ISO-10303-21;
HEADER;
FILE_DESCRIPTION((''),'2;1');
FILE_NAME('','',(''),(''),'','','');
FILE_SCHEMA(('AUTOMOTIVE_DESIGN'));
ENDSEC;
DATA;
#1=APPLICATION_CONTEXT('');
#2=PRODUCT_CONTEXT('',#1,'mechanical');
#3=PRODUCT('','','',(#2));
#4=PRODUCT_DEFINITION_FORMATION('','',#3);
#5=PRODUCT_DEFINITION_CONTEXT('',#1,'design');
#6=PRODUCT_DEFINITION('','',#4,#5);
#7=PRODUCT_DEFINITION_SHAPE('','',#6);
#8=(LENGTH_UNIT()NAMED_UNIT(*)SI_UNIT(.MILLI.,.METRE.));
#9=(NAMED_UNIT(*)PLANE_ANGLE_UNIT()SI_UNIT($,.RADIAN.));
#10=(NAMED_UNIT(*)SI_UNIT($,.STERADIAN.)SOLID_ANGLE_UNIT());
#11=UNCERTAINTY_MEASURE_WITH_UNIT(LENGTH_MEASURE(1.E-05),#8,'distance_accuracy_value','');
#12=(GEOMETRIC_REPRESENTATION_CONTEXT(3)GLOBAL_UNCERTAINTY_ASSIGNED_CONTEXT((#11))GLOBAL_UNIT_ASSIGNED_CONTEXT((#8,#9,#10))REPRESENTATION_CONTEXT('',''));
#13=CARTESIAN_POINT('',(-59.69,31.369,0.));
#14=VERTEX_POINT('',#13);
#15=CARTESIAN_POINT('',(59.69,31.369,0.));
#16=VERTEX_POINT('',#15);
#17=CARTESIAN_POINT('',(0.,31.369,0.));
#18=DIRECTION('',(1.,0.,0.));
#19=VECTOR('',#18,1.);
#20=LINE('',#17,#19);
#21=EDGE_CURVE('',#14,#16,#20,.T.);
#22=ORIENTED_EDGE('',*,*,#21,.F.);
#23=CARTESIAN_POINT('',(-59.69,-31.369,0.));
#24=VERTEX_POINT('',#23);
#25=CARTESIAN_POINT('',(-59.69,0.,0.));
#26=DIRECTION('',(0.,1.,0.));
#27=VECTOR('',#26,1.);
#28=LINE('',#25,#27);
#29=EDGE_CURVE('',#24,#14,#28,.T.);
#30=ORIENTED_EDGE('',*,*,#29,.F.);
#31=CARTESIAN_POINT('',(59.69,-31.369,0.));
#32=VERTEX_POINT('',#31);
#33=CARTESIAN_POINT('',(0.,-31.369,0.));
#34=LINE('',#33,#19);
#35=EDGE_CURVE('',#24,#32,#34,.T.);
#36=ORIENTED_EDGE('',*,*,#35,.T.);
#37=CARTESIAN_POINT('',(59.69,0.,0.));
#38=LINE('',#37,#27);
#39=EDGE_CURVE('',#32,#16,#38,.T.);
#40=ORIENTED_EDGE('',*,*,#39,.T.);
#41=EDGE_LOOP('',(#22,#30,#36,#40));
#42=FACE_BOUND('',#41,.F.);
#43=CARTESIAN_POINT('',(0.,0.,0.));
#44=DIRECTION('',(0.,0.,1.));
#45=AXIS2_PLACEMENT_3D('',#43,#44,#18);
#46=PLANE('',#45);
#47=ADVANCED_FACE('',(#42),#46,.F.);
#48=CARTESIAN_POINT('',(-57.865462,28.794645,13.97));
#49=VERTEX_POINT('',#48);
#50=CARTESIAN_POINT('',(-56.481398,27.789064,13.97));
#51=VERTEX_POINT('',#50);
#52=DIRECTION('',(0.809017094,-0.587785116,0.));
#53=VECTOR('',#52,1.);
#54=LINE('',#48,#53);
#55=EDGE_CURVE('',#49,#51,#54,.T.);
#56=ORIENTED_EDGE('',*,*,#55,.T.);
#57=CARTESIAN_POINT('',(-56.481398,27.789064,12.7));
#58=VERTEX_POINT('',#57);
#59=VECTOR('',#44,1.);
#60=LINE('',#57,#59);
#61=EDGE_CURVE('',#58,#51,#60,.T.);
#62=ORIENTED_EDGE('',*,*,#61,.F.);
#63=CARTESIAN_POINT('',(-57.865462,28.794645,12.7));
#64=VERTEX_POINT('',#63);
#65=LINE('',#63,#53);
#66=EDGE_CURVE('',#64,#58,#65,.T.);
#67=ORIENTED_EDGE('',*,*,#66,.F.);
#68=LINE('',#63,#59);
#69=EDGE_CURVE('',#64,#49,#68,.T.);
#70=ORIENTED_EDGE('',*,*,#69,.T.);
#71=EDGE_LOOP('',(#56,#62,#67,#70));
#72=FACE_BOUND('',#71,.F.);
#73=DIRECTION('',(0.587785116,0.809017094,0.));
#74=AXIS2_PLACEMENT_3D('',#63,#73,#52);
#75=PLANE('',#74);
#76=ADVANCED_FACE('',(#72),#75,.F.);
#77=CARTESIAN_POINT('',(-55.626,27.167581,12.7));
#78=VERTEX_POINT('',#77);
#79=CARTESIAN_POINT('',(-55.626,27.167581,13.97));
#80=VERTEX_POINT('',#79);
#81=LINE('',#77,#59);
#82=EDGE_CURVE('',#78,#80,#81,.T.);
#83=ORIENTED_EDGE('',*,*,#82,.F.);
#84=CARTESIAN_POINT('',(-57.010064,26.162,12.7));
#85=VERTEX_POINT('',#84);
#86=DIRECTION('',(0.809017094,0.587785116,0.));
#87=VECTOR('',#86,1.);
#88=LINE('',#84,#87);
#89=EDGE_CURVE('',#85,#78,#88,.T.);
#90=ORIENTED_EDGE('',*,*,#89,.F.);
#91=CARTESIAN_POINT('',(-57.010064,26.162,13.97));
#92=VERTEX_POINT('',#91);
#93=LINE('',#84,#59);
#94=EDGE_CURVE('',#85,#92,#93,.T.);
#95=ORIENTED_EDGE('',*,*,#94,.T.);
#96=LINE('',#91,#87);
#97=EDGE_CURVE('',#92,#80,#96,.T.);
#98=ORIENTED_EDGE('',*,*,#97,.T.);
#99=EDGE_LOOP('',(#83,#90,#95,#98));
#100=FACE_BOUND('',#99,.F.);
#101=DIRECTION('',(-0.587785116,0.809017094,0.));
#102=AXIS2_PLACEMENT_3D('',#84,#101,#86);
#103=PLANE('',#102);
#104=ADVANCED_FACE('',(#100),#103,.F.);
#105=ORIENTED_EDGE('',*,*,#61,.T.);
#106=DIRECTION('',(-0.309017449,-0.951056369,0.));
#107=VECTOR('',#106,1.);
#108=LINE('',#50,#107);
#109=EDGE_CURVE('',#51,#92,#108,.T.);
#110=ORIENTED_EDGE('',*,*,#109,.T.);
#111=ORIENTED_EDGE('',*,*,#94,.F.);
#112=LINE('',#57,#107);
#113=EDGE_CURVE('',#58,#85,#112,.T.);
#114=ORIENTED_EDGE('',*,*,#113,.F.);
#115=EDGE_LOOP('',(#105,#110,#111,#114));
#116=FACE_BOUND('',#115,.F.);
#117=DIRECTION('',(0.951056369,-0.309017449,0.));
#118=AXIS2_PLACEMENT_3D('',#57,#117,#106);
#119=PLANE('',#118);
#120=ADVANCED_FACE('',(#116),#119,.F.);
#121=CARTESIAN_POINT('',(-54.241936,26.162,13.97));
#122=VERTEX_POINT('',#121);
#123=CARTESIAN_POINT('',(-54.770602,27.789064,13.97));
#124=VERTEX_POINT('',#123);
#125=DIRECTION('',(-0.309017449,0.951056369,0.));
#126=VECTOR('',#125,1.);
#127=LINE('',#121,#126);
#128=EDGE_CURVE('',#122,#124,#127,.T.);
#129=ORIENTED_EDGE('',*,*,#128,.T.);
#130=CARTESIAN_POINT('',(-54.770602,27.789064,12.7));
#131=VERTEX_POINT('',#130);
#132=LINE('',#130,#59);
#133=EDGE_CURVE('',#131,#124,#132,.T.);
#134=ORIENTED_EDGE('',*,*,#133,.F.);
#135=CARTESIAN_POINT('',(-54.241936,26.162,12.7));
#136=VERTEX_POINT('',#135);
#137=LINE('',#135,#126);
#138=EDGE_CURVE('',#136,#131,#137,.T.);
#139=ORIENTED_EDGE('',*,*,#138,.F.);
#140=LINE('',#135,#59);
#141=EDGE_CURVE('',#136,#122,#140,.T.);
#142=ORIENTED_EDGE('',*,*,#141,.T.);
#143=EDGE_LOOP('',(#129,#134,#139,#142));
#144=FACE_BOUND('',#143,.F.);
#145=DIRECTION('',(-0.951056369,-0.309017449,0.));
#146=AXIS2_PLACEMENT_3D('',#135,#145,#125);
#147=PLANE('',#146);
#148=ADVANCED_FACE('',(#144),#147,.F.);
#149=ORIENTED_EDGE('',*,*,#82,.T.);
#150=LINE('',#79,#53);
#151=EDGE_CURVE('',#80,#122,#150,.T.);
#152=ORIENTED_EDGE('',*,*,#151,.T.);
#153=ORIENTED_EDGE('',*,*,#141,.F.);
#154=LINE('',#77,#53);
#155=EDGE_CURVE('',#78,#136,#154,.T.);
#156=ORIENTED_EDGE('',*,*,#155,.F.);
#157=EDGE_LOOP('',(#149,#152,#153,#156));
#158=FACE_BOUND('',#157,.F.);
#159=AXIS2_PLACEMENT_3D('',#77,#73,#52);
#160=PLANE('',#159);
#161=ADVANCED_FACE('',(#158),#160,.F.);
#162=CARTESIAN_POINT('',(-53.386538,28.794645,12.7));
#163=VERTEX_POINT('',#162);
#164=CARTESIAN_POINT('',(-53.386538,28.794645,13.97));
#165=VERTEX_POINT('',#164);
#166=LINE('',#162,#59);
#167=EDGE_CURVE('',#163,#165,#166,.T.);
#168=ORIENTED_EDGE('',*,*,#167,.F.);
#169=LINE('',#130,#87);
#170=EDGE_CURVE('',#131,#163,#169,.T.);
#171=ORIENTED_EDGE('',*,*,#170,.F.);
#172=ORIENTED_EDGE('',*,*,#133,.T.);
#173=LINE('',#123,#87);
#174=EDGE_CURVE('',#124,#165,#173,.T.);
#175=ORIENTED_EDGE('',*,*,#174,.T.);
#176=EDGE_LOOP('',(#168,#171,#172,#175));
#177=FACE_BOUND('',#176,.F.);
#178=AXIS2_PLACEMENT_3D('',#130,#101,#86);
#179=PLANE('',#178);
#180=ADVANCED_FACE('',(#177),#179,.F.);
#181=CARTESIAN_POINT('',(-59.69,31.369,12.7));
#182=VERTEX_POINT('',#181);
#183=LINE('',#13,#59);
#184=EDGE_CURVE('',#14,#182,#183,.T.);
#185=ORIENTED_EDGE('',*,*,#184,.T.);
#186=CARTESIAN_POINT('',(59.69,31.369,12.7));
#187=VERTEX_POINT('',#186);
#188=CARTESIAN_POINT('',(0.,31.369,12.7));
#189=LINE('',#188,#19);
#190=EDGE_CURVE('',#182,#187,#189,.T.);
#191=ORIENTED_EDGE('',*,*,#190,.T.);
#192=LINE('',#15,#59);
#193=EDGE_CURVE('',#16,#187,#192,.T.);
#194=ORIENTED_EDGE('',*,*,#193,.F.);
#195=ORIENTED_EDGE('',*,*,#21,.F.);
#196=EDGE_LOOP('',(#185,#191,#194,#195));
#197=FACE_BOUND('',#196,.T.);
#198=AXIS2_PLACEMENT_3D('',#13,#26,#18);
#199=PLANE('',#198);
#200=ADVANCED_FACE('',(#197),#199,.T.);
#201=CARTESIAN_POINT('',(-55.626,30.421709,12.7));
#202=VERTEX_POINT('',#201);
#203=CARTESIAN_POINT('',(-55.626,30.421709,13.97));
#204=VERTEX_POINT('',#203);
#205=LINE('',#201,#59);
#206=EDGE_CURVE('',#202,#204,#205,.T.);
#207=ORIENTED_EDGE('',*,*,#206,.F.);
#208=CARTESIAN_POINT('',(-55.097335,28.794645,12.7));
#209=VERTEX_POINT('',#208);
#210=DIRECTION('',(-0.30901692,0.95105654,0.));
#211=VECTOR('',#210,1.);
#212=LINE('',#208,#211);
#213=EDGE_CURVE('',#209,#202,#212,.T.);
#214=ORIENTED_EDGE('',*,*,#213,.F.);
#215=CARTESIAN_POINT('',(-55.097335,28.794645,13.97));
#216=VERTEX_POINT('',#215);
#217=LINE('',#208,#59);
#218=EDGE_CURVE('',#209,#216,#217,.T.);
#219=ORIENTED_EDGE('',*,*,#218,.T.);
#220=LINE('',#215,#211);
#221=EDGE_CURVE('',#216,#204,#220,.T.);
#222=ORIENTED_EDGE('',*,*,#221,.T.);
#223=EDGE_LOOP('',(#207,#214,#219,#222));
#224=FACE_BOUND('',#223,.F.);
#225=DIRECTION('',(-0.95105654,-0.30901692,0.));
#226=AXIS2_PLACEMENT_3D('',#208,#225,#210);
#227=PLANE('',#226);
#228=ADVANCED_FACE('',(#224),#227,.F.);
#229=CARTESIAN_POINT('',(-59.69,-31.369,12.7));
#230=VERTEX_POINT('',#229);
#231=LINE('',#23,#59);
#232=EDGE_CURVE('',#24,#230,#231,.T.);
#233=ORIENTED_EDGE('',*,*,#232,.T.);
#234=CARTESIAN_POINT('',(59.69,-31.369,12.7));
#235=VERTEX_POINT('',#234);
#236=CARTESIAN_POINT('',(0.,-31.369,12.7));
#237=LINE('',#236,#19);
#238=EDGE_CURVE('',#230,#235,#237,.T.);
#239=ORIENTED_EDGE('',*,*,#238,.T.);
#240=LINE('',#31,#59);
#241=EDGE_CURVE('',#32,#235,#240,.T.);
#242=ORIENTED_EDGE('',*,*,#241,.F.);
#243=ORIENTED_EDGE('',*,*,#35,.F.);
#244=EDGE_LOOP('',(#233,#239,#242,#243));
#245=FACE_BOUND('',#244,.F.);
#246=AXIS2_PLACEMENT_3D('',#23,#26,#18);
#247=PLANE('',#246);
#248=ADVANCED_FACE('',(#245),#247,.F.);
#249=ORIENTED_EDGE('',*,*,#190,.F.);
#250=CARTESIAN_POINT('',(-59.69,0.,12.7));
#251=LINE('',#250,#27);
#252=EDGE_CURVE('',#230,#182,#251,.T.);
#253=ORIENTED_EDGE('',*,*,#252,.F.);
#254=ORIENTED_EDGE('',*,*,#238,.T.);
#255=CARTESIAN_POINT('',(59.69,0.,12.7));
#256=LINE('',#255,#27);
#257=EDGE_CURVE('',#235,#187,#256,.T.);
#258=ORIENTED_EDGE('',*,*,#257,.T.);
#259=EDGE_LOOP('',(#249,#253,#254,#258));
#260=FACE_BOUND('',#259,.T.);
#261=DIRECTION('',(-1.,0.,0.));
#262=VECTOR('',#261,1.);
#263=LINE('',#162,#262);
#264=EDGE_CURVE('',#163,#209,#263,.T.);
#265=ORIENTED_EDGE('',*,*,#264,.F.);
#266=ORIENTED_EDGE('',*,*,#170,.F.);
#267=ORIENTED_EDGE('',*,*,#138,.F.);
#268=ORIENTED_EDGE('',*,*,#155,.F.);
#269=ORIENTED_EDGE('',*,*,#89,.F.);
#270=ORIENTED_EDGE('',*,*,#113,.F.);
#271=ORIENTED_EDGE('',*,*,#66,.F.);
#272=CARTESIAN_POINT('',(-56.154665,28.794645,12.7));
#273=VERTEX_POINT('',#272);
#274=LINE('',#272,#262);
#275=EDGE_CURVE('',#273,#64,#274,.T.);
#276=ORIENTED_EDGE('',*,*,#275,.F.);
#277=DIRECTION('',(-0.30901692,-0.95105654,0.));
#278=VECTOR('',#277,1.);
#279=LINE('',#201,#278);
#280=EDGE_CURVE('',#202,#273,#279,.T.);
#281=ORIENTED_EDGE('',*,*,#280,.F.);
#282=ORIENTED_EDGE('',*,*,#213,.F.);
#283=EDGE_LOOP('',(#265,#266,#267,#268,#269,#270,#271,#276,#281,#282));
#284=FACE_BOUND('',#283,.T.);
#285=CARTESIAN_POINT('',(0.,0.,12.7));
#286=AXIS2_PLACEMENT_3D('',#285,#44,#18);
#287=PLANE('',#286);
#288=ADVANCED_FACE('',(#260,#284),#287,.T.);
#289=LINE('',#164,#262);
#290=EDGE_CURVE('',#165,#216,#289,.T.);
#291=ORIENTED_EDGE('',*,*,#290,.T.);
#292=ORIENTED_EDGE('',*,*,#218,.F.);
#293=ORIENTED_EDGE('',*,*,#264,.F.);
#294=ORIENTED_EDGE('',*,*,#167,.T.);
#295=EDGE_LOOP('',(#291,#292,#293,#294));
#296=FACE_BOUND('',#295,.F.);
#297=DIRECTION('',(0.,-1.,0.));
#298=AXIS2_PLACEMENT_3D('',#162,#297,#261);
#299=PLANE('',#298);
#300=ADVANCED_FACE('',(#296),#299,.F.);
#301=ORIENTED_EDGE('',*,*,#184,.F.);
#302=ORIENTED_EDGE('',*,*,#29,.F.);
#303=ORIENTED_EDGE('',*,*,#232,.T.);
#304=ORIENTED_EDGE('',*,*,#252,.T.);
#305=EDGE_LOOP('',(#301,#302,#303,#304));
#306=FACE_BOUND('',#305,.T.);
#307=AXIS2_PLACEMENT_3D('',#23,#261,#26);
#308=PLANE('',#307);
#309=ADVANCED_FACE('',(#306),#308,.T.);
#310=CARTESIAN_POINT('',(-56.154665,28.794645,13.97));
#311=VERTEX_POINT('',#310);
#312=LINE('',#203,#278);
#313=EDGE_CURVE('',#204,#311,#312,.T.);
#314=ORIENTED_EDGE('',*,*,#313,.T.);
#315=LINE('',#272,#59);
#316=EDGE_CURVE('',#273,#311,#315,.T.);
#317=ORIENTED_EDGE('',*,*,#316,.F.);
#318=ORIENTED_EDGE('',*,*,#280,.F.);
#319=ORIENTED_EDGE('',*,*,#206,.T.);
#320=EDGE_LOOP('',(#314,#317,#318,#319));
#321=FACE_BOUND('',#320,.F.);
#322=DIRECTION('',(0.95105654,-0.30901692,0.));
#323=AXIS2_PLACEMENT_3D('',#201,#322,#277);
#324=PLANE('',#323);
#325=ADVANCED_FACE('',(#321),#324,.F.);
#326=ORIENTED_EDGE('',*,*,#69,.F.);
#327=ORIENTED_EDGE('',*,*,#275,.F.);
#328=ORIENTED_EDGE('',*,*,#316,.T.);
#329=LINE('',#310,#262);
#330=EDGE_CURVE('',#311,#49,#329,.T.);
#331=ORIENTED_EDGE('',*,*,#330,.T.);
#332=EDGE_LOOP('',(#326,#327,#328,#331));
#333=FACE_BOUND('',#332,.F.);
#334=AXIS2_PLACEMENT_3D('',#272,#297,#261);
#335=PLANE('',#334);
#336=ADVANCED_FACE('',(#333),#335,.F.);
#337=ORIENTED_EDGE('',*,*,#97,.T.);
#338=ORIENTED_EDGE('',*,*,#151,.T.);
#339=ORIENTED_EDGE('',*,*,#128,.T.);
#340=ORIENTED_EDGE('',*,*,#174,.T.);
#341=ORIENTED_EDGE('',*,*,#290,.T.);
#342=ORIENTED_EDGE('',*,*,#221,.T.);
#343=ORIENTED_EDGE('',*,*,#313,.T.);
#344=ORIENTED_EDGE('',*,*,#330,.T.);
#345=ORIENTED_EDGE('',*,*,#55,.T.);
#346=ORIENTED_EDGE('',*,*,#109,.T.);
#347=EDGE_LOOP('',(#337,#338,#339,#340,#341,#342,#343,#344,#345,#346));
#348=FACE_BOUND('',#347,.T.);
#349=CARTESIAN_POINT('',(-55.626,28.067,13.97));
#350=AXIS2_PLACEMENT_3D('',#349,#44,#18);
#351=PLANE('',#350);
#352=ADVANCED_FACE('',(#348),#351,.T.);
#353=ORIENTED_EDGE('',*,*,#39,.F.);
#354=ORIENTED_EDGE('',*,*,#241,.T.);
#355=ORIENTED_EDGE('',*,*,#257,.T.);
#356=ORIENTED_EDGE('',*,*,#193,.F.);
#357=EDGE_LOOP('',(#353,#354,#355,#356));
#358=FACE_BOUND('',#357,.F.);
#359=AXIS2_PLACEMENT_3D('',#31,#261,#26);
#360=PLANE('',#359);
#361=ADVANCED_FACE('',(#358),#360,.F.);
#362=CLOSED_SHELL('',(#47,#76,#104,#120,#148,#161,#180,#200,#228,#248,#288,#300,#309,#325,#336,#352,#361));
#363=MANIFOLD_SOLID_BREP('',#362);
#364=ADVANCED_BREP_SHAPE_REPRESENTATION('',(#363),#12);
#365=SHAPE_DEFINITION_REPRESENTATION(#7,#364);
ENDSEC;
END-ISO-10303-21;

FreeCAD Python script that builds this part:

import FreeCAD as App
import Part
import Sketcher
Q = App.Units.Quantity

doc = App.newDocument("Part")
params = doc.addObject("Spreadsheet::Sheet", "Params")
for row, (alias, value) in enumerate([
    ("sketch1_width", "4.7 in"),
    ("sketch1_height", "2.47 in"),
    ("pad1_length", "0.5 in"),
    ("pad2_length", "0.05 in"),
], start=1):
    params.set(f"A{row}", alias)
    params.set(f"B{row}", "=" + value)
    params.setAlias(f"B{row}", alias)

body = doc.addObject("PartDesign::Body", "Body")

# Sketch on XY plane
sketch1 = body.newObject("Sketcher::SketchObject", "Sketch")
sketch1.AttachmentSupport = (doc.getObject("XY_Plane"), [""])
sketch1.MapMode = "FlatFace"
sketch1.addGeometry(Part.LineSegment(App.Vector(-60, 31, 0), App.Vector(-60, -31, 0)), False)
sketch1.addGeometry(Part.LineSegment(App.Vector(-60, -31, 0), App.Vector(60, -31, 0)), False)
sketch1.addGeometry(Part.LineSegment(App.Vector(60, -31, 0), App.Vector(60, 31, 0)), False)
sketch1.addGeometry(Part.LineSegment(App.Vector(60, 31, 0), App.Vector(-60, 31, 0)), False)
sketch1.addConstraint(Sketcher.Constraint("Coincident", 0, 2, 1, 1))
sketch1.addConstraint(Sketcher.Constraint("Coincident", 1, 2, 2, 1))
sketch1.addConstraint(Sketcher.Constraint("Coincident", 2, 2, 3, 1))
sketch1.addConstraint(Sketcher.Constraint("Coincident", 3, 2, 0, 1))
sketch1.addConstraint(Sketcher.Constraint("Vertical", 0))
sketch1.addConstraint(Sketcher.Constraint("Horizontal", 1))
sketch1.addConstraint(Sketcher.Constraint("Vertical", 2))
sketch1.addConstraint(Sketcher.Constraint("Horizontal", 3))
sketch1.addConstraint(Sketcher.Constraint("Symmetric", 0, 2, 2, 2, -1, 1))
sketch1.addConstraint(Sketcher.Constraint("DistanceX", 1, 1, 1, 2, Q("4.7 in")))
sketch1.addConstraint(Sketcher.Constraint("DistanceY", 0, 2, 0, 1, Q("2.47 in")))
sketch1.setExpression("Constraints[9]", "Params.sketch1_width")
sketch1.setExpression("Constraints[10]", "Params.sketch1_height")
pad1 = body.newObject("PartDesign::Pad", "Pad")
pad1.Profile = sketch1
pad1.setExpression("Length", "Params.pad1_length")

# Sketch on XY plane
sketch2 = body.newObject("Sketcher::SketchObject", "Sketch001")
sketch2.AttachmentSupport = (doc.getObject("XY_Plane"), [""])
sketch2.MapMode = "FlatFace"
sketch2.AttachmentOffset = App.Placement(App.Vector(0, 0, 0.5 * 25.4), App.Rotation())
sketch2.addGeometry(Part.LineSegment(App.Vector(-55.1, 28.8, 0), App.Vector(-55.6, 30.4, 0)), False)
sketch2.addGeometry(Part.LineSegment(App.Vector(-55.6, 30.4, 0), App.Vector(-56.2, 28.8, 0)), False)
sketch2.addGeometry(Part.LineSegment(App.Vector(-56.2, 28.8, 0), App.Vector(-57.9, 28.8, 0)), False)
sketch2.addGeometry(Part.LineSegment(App.Vector(-57.9, 28.8, 0), App.Vector(-56.5, 27.8, 0)), False)
sketch2.addGeometry(Part.LineSegment(App.Vector(-56.5, 27.8, 0), App.Vector(-57, 26.2, 0)), False)
sketch2.addGeometry(Part.LineSegment(App.Vector(-57, 26.2, 0), App.Vector(-55.6, 27.2, 0)), False)
sketch2.addGeometry(Part.LineSegment(App.Vector(-55.6, 27.2, 0), App.Vector(-54.2, 26.2, 0)), False)
sketch2.addGeometry(Part.LineSegment(App.Vector(-54.2, 26.2, 0), App.Vector(-54.8, 27.8, 0)), False)
sketch2.addGeometry(Part.LineSegment(App.Vector(-54.8, 27.8, 0), App.Vector(-53.4, 28.8, 0)), False)
sketch2.addGeometry(Part.LineSegment(App.Vector(-53.4, 28.8, 0), App.Vector(-55.1, 28.8, 0)), False)
sketch2.addConstraint(Sketcher.Constraint("Coincident", 0, 2, 1, 1))
sketch2.addConstraint(Sketcher.Constraint("Coincident", 1, 2, 2, 1))
sketch2.addConstraint(Sketcher.Constraint("Coincident", 2, 2, 3, 1))
sketch2.addConstraint(Sketcher.Constraint("Coincident", 3, 2, 4, 1))
sketch2.addConstraint(Sketcher.Constraint("Coincident", 4, 2, 5, 1))
sketch2.addConstraint(Sketcher.Constraint("Coincident", 5, 2, 6, 1))
sketch2.addConstraint(Sketcher.Constraint("Coincident", 6, 2, 7, 1))
sketch2.addConstraint(Sketcher.Constraint("Coincident", 7, 2, 8, 1))
sketch2.addConstraint(Sketcher.Constraint("Coincident", 8, 2, 9, 1))
sketch2.addConstraint(Sketcher.Constraint("Coincident", 9, 2, 0, 1))
sketch2.addConstraint(Sketcher.Constraint("Horizontal", 2))
sketch2.addConstraint(Sketcher.Constraint("Horizontal", 9))
sketch2.addConstraint(Sketcher.Constraint("Parallel", 1, 4))
sketch2.addConstraint(Sketcher.Constraint("Parallel", 3, 6))
sketch2.addConstraint(Sketcher.Constraint("Parallel", 0, 7))
sketch2.addConstraint(Sketcher.Constraint("Parallel", 5, 8))
sketch2.addConstraint(Sketcher.Constraint("Horizontal", 4, 2, 6, 2))
sketch2.addConstraint(Sketcher.Constraint("Horizontal", 3, 2, 7, 2))
sketch2.addConstraint(Sketcher.Constraint("Horizontal", 2, 2, 8, 2))
sketch2.addConstraint(Sketcher.Constraint("Vertical", 0, 2, 5, 2))
sketch2.addConstraint(Sketcher.Constraint("Equal", 2, 9))
sketch2.addConstraint(Sketcher.Constraint("Equal", 1, 3))
sketch2.addConstraint(Sketcher.Constraint("Equal", 3, 4))
sketch2.addConstraint(Sketcher.Constraint("Equal", 4, 5))
sketch2.addConstraint(Sketcher.Constraint("Equal", 5, 6))
sketch2.addConstraint(Sketcher.Constraint("Angle", 0, Q("107.999996 deg")))
sketch2.addConstraint(Sketcher.Constraint("Angle", 3, Q("-35.99999 deg")))
sketch2.addConstraint(Sketcher.Constraint("DistanceX", 0, 2, -1, 1, Q("2.19 in")))
sketch2.addConstraint(Sketcher.Constraint("DistanceY", -1, 1, 4, 2, Q("1.03 in")))
sketch2.addConstraint(Sketcher.Constraint("DistanceX", 7, 2, -1, 1, 54.770602))
pad2 = body.newObject("PartDesign::Pad", "Pad001")
pad2.Profile = sketch2
pad2.setExpression("Length", "Params.pad2_length")

doc.recompute()
